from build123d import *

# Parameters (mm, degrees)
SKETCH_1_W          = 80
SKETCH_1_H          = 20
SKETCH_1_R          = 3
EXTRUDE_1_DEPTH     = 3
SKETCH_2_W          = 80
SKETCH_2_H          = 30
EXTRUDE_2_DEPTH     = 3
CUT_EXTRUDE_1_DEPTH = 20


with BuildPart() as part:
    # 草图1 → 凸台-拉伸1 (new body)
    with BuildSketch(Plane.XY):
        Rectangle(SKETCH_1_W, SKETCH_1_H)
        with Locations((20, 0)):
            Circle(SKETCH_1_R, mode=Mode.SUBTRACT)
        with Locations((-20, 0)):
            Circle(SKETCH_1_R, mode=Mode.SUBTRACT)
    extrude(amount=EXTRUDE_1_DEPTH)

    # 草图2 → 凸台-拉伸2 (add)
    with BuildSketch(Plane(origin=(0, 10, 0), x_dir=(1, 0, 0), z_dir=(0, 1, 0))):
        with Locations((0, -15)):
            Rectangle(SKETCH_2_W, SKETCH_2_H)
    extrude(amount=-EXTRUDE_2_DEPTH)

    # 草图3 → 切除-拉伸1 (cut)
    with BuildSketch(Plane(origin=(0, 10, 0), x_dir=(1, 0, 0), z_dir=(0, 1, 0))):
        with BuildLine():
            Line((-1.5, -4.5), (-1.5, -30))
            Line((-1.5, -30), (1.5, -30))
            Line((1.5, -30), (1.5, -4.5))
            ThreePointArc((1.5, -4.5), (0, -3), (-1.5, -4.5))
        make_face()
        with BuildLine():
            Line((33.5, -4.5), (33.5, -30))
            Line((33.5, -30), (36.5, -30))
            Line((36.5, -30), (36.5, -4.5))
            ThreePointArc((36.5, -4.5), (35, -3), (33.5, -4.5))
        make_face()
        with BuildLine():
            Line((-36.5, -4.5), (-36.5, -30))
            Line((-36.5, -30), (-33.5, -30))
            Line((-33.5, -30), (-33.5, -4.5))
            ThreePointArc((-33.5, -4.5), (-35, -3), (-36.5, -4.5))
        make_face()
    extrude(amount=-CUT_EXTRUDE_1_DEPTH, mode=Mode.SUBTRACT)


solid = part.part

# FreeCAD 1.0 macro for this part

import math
import FreeCAD as App
import Part
import Sketcher

doc = App.newDocument("Part")
params = doc.addObject("Spreadsheet::Sheet", "Params")
for row, (alias, value) in enumerate([
    ("sketch1_diameter", "6 mm"),
    ("sketch1_width", "80 mm"),
    ("sketch1_height", "20 mm"),
    ("pad1_length", "3 mm"),
    ("sketch2_width", "80 mm"),
    ("sketch2_height", "30 mm"),
    ("pad2_length", "3 mm"),
    ("sketch3_radius", "1.5 mm"),
    ("sketch3_height", "25.5 mm"),
    ("pocket1_length", "20 mm"),
], start=1):
    params.set(f"A{row}", alias)
    params.set(f"B{row}", "=" + value)
    params.setAlias(f"B{row}", alias)

body = doc.addObject("PartDesign::Body", "Body")

# Sketch on XY plane
sketch1 = body.newObject("Sketcher::SketchObject", "Sketch")
sketch1.AttachmentSupport = (doc.getObject("XY_Plane"), [""])
sketch1.MapMode = "FlatFace"
sketch1.addGeometry([
    Part.LineSegment(App.Vector(-40, 10, 0), App.Vector(-40, -10, 0)),  # 0
    Part.LineSegment(App.Vector(-40, -10, 0), App.Vector(40, -10, 0)),  # 1
    Part.LineSegment(App.Vector(40, -10, 0), App.Vector(40, 10, 0)),  # 2
    Part.LineSegment(App.Vector(40, 10, 0), App.Vector(-40, 10, 0)),  # 3
    Part.Circle(App.Vector(-20, 0, 0), App.Vector(0, 0, 1), 3),  # 4
    Part.Circle(App.Vector(20, 0, 0), App.Vector(0, 0, 1), 3),  # 5
], False)
sketch1.addConstraint([
    Sketcher.Constraint("Coincident", 0, 2, 1, 1),
    Sketcher.Constraint("Coincident", 1, 2, 2, 1),
    Sketcher.Constraint("Coincident", 2, 2, 3, 1),
    Sketcher.Constraint("Coincident", 3, 2, 0, 1),
    Sketcher.Constraint("Vertical", 0),
    Sketcher.Constraint("Horizontal", 1),
    Sketcher.Constraint("Vertical", 2),
    Sketcher.Constraint("Horizontal", 3),
    Sketcher.Constraint("Equal", 4, 5),
    Sketcher.Constraint("Symmetric", 4, 3, 5, 3, -1, 1),
    Sketcher.Constraint("Symmetric", 0, 2, 2, 2, -1, 1),
    Sketcher.Constraint("PointOnObject", 4, 3, -1),
    Sketcher.Constraint("Diameter", 4, 6.0),
    Sketcher.Constraint("DistanceX", 1, 1, 1, 2, 80.0),
    Sketcher.Constraint("DistanceY", 0, 2, 0, 1, 20.0),
    Sketcher.Constraint("DistanceX", 4, 3, -1, 1, 20.0),
])
sketch1.setExpression("Constraints[12]", "Params.sketch1_diameter")
sketch1.setExpression("Constraints[13]", "Params.sketch1_width")
sketch1.setExpression("Constraints[14]", "Params.sketch1_height")
pad1 = body.newObject("PartDesign::Pad", "Pad")
pad1.Profile = sketch1
pad1.setExpression("Length", "Params.pad1_length")

# Sketch on XZ plane
sketch2 = body.newObject("Sketcher::SketchObject", "Sketch001")
sketch2.AttachmentSupport = (doc.getObject("XZ_Plane"), [""])
sketch2.MapMode = "FlatFace"
sketch2.AttachmentOffset = App.Placement(App.Vector(0, 0, -10), App.Rotation())
sketch2.addGeometry([
    Part.LineSegment(App.Vector(-40, 0, 0), App.Vector(-40, 30, 0)),
    Part.LineSegment(App.Vector(-40, 30, 0), App.Vector(40, 30, 0)),
    Part.LineSegment(App.Vector(40, 30, 0), App.Vector(40, 0, 0)),
    Part.LineSegment(App.Vector(40, 0, 0), App.Vector(-40, 0, 0)),
], False)
sketch2.addConstraint([
    Sketcher.Constraint("Coincident", 0, 2, 1, 1),
    Sketcher.Constraint("Coincident", 1, 2, 2, 1),
    Sketcher.Constraint("Coincident", 2, 2, 3, 1),
    Sketcher.Constraint("Coincident", 3, 2, 0, 1),
    Sketcher.Constraint("Vertical", 0),
    Sketcher.Constraint("Horizontal", 1),
    Sketcher.Constraint("Vertical", 2),
    Sketcher.Constraint("Horizontal", 3),
    Sketcher.Constraint("Symmetric", 2, 2, 3, 2, -1, 1),
    Sketcher.Constraint("DistanceX", 1, 1, 1, 2, 80.0),
    Sketcher.Constraint("DistanceY", 0, 1, 0, 2, 30.0),
])
sketch2.setExpression("Constraints[9]", "Params.sketch2_width")
sketch2.setExpression("Constraints[10]", "Params.sketch2_height")
pad2 = body.newObject("PartDesign::Pad", "Pad001")
pad2.Profile = sketch2
pad2.setExpression("Length", "Params.pad2_length")

# Sketch on XZ plane
sketch3 = body.newObject("Sketcher::SketchObject", "Sketch002")
sketch3.AttachmentSupport = (doc.getObject("XZ_Plane"), [""])
sketch3.MapMode = "FlatFace"
sketch3.AttachmentOffset = App.Placement(App.Vector(0, 0, -10), App.Rotation())
sketch3.addGeometry([
    Part.LineSegment(App.Vector(-1.5, 4.5, 0), App.Vector(-1.5, 30, 0)),  # 0
    Part.LineSegment(App.Vector(-1.5, 30, 0), App.Vector(1.5, 30, 0)),  # 1
    Part.LineSegment(App.Vector(1.5, 30, 0), App.Vector(1.5, 4.5, 0)),  # 2
    Part.ArcOfCircle(Part.Circle(App.Vector(0, 4.5, 0), App.Vector(0, 0, 1), 1.5), math.radians(180), math.radians(360)),  # 3
    Part.LineSegment(App.Vector(33.5, 4.5, 0), App.Vector(33.5, 30, 0)),  # 4
    Part.LineSegment(App.Vector(33.5, 30, 0), App.Vector(36.5, 30, 0)),  # 5
    Part.LineSegment(App.Vector(36.5, 30, 0), App.Vector(36.5, 4.5, 0)),  # 6
    Part.ArcOfCircle(Part.Circle(App.Vector(35, 4.5, 0), App.Vector(0, 0, 1), 1.5), math.radians(180), math.radians(360)),  # 7
    Part.LineSegment(App.Vector(-36.5, 4.5, 0), App.Vector(-36.5, 30, 0)),  # 8
    Part.LineSegment(App.Vector(-36.5, 30, 0), App.Vector(-33.5, 30, 0)),  # 9
    Part.LineSegment(App.Vector(-33.5, 30, 0), App.Vector(-33.5, 4.5, 0)),  # 10
    Part.ArcOfCircle(Part.Circle(App.Vector(-35, 4.5, 0), App.Vector(0, 0, 1), 1.5), math.radians(180), math.radians(360)),  # 11
], False)
sketch3.addConstraint([
    Sketcher.Constraint("Coincident", 0, 2, 1, 1),
    Sketcher.Constraint("Coincident", 1, 2, 2, 1),
    Sketcher.Constraint("Tangent", 2, 2, 3, 2),
    Sketcher.Constraint("Tangent", 3, 1, 0, 1),
    Sketcher.Constraint("Coincident", 4, 2, 5, 1),
    Sketcher.Constraint("Coincident", 5, 2, 6, 1),
    Sketcher.Constraint("Tangent", 6, 2, 7, 2),
    Sketcher.Constraint("Tangent", 7, 1, 4, 1),
    Sketcher.Constraint("Coincident", 8, 2, 9, 1),
    Sketcher.Constraint("Coincident", 9, 2, 10, 1),
    Sketcher.Constraint("Tangent", 10, 2, 11, 2),
    Sketcher.Constraint("Tangent", 11, 1, 8, 1),
    Sketcher.Constraint("Vertical", 0),
    Sketcher.Constraint("Horizontal", 1),
    Sketcher.Constraint("Vertical", 2),
    Sketcher.Constraint("Vertical", 4),
    Sketcher.Constraint("Horizontal", 5),
    Sketcher.Constraint("Vertical", 6),
    Sketcher.Constraint("Vertical", 8),
    Sketcher.Constraint("Horizontal", 9),
    Sketcher.Constraint("Vertical", 10),
    Sketcher.Constraint("Equal", 3, 7),
    Sketcher.Constraint("Equal", 7, 11),
    Sketcher.Constraint("Symmetric", 7, 3, 11, 3, -2),
    Sketcher.Constraint("PointOnObject", 3, 3, -2),
    Sketcher.Constraint("Horizontal", 3, 3, 7, 3),
    Sketcher.Constraint("Horizontal", 1, 2, 4, 2),
    Sketcher.Constraint("Horizontal", 5, 2, 8, 2),
    Sketcher.Constraint("Radius", 3, 1.5),
    Sketcher.Constraint("DistanceY", 0, 1, 0, 2, 25.5),
    Sketcher.Constraint("DistanceX", -1, 1, 7, 3, 35.0),
    Sketcher.Constraint("DistanceY", -1, 1, 0, 2, 30.0),
])
sketch3.setExpression("Constraints[28]", "Params.sketch3_radius")
sketch3.setExpression("Constraints[29]", "Params.sketch3_height")
pocket1 = body.newObject("PartDesign::Pocket", "Pocket")
pocket1.Profile = sketch3
pocket1.setExpression("Length", "Params.pocket1_length")
pocket1.Reversed = True

doc.recompute()
